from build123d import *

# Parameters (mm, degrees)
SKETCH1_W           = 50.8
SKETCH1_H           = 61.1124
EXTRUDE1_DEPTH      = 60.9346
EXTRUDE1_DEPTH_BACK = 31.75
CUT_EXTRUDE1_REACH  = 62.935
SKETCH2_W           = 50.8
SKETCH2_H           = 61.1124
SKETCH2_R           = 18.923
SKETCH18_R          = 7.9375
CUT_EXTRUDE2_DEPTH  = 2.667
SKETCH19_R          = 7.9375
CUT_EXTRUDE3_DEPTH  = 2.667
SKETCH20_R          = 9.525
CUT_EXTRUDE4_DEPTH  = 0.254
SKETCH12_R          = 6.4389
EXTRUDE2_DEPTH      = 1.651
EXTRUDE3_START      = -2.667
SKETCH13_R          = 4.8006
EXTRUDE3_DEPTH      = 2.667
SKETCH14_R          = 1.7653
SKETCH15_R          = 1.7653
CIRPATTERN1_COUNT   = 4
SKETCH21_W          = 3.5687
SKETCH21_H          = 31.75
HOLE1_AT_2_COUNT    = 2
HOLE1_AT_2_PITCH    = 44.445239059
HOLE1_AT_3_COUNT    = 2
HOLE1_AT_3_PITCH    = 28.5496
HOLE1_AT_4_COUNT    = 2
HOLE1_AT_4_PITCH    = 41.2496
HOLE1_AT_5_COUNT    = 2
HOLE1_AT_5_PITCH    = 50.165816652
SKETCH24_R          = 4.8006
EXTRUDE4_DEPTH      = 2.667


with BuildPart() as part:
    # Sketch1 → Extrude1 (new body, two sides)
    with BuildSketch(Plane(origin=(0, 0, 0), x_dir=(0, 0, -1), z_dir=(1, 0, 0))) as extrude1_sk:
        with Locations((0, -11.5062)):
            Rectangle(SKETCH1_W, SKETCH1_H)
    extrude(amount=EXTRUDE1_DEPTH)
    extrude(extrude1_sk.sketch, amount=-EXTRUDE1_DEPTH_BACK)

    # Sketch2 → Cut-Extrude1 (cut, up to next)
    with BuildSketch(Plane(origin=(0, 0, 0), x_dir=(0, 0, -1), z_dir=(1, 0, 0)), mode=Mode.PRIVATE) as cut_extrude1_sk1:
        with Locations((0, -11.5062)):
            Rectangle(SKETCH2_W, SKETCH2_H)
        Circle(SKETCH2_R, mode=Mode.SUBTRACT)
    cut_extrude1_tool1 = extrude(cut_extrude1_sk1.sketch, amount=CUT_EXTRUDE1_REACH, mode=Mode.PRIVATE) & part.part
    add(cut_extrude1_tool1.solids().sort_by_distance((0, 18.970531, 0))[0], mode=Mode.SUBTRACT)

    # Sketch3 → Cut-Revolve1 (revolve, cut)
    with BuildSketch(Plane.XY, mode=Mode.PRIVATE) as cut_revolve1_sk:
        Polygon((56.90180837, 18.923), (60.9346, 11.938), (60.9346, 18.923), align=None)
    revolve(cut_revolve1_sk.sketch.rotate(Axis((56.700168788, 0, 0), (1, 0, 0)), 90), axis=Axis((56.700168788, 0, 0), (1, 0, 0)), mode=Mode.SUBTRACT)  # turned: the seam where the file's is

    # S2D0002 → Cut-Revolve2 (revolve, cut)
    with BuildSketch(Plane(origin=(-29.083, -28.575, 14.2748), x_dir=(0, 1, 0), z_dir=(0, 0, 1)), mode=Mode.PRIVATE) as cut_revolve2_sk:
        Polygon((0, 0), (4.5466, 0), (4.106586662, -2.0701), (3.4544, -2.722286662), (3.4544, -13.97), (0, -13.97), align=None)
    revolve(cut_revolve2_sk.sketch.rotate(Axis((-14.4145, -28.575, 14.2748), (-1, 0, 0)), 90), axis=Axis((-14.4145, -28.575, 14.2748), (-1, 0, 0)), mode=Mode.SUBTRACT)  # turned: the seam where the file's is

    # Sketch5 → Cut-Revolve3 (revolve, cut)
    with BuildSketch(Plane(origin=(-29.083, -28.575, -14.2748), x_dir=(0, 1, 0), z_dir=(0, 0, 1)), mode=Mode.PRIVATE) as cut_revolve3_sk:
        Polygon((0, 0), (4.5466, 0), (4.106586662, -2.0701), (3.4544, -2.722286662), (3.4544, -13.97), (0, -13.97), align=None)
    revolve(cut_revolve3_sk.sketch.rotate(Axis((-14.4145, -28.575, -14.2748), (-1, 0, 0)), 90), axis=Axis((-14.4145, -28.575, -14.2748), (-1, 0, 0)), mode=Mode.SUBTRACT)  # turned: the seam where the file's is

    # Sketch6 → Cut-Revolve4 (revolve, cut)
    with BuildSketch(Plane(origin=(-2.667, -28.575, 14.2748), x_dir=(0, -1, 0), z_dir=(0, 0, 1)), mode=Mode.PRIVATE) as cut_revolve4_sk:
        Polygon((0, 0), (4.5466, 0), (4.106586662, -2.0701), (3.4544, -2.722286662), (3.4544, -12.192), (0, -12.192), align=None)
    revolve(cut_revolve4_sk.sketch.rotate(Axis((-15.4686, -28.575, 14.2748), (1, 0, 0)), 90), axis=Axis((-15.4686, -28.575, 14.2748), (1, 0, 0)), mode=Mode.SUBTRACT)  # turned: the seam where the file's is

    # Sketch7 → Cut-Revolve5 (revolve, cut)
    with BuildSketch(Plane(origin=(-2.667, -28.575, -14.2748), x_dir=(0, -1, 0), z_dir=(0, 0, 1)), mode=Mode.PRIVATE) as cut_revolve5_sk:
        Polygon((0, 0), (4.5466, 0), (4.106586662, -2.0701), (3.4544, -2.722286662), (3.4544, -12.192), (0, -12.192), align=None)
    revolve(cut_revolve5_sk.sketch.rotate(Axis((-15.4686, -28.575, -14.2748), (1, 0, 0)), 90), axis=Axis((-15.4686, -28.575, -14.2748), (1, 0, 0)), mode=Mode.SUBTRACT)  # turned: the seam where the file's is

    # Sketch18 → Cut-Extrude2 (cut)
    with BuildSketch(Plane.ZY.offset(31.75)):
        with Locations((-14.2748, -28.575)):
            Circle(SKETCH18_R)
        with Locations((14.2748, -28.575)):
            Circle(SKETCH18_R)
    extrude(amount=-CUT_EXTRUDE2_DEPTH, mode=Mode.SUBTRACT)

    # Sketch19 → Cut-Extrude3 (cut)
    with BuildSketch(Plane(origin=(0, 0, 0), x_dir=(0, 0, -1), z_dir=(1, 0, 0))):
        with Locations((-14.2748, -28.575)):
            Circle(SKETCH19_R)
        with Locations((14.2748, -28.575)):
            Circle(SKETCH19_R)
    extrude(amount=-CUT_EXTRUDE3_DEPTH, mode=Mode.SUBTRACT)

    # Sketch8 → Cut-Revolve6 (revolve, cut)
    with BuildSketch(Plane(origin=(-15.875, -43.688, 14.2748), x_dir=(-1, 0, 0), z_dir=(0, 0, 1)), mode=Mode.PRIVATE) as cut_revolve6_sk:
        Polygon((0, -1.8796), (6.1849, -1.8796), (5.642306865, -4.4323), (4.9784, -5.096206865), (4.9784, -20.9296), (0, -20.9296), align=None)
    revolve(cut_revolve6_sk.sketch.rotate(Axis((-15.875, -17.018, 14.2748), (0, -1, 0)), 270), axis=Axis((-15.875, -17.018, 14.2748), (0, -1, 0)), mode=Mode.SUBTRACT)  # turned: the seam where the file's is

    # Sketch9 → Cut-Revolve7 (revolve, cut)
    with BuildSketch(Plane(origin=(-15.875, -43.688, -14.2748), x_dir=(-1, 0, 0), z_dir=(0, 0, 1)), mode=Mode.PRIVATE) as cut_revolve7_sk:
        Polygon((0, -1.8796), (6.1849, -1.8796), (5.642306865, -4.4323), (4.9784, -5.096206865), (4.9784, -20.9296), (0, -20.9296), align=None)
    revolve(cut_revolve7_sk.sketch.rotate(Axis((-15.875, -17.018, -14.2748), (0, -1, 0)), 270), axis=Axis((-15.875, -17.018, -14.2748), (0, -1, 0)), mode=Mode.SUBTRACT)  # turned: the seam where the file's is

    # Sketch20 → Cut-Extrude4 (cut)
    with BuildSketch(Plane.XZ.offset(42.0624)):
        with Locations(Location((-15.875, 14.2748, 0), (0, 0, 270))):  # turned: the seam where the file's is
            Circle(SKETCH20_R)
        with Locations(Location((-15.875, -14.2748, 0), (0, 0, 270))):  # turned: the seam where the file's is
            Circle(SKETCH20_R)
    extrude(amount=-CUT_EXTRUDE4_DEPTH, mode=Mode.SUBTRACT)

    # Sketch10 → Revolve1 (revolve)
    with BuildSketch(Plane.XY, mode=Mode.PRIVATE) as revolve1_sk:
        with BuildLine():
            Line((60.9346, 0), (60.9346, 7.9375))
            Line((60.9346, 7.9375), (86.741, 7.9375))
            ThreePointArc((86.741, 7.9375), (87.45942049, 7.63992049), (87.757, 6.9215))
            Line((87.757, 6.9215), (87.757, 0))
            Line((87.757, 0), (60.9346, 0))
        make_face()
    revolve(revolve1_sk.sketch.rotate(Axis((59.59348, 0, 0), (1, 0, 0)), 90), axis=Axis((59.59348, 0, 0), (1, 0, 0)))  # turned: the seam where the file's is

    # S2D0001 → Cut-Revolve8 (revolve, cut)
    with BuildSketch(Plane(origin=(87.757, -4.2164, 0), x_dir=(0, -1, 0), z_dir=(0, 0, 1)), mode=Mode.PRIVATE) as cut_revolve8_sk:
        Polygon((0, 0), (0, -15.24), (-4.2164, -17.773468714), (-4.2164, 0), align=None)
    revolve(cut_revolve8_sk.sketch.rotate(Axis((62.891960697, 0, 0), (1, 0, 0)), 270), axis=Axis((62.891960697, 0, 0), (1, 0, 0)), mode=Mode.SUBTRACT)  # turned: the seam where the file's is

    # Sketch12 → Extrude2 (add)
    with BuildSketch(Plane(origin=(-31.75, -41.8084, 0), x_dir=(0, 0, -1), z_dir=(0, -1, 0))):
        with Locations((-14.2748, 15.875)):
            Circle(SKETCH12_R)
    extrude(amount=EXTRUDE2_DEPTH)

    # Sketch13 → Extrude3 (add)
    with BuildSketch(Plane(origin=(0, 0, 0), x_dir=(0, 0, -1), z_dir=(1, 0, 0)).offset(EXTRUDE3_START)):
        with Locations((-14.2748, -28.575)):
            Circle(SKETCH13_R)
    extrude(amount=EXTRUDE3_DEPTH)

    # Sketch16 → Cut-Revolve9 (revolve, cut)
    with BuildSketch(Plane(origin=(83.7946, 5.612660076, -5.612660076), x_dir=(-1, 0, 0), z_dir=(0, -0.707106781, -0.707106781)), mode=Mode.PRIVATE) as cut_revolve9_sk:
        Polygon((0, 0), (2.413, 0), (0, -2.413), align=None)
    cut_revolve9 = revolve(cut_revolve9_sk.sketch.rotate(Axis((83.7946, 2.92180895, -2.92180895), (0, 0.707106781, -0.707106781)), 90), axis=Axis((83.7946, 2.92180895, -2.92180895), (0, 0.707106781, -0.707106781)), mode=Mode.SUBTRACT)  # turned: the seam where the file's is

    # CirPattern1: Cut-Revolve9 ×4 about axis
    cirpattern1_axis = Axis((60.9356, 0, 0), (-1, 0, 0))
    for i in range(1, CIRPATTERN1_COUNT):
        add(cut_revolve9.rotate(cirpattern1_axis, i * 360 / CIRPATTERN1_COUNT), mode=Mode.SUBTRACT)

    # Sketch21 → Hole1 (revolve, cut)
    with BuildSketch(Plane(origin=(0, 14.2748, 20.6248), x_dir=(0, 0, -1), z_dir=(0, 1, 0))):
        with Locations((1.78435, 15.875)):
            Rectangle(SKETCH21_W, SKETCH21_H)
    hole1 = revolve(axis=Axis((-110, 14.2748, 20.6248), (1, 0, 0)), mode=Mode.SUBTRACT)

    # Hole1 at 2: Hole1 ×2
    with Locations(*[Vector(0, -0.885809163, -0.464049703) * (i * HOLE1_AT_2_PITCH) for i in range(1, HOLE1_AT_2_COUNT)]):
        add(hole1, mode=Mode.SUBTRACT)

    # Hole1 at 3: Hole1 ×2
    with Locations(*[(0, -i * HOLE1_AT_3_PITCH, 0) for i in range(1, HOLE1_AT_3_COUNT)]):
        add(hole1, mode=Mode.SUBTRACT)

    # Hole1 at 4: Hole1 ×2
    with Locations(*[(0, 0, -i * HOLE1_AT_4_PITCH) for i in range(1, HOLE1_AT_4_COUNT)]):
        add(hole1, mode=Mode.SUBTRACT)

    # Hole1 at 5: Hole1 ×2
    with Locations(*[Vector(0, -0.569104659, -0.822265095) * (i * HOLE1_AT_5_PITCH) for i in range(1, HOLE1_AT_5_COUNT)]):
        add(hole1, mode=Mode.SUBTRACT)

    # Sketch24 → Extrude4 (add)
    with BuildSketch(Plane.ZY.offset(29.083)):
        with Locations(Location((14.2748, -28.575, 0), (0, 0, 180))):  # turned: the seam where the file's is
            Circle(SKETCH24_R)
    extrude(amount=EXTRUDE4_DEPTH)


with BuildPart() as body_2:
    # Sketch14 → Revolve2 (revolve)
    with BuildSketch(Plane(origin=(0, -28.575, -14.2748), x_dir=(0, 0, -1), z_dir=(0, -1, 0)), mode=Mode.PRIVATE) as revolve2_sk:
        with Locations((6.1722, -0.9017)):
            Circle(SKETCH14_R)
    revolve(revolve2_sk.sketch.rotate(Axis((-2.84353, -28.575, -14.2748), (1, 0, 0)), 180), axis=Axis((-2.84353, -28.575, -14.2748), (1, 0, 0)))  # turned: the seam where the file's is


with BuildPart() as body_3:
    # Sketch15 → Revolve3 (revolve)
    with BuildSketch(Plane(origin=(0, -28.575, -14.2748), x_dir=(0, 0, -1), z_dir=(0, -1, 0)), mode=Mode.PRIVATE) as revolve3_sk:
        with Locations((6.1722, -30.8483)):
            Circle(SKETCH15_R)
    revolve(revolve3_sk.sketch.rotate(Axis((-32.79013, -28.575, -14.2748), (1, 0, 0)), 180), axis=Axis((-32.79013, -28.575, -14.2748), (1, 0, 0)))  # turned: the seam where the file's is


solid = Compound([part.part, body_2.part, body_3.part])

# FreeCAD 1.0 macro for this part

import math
import FreeCAD as App
import Part
import Sketcher

V = App.Vector
Q = App.Units.Quantity


def add_polygon(sketch, points):
    """Adds a closed chain of lines whose ends are joined by coincident constraints."""
    first, n = sketch.GeometryCount, len(points)
    for a, b in zip(points, points[1:] + points[:1]):
        sketch.addGeometry(Part.LineSegment(App.Vector(*a, 0), App.Vector(*b, 0)), False)
    for i in range(n):
        sketch.addConstraint(Sketcher.Constraint("Coincident", first + i, 2, first + (i + 1) % n, 1))

doc = App.newDocument("Part")
body = doc.addObject("PartDesign::Body", "Body")

sketch1 = body.newObject("Sketcher::SketchObject", "Sketch")
sketch1.AttachmentSupport = (doc.getObject("YZ_Plane"), [""])
sketch1.MapMode = "FlatFace"
add_polygon(sketch1, [(19, 25), (-42, 25), (-42, -25), (19, -25)])
sketch1.addConstraint([
    Sketcher.Constraint("Horizontal", 0),
    Sketcher.Constraint("Vertical", 1),
    Sketcher.Constraint("Horizontal", 2),
    Sketcher.Constraint("Vertical", 3),
    Sketcher.Constraint("DistanceY", 1, 2, 1, 1, Q("2 in")),
    Sketcher.Constraint("DistanceY", -1, 1, 0, 2, Q("1 in")),
    Sketcher.Constraint("DistanceX", 0, 2, 0, 1, Q("2.406 in")),
    Sketcher.Constraint("DistanceX", -1, 1, 2, 2, Q("0.75 in")),
])
pad1 = body.newObject("PartDesign::Pad", "Pad")
pad1.Profile = sketch1
pad1.Type = "TwoLengths"
pad1.Length = Q("2.399 in")
pad1.Length2 = Q("1.25 in")

sketch2 = body.newObject("Sketcher::SketchObject", "Sketch001")
sketch2.AttachmentSupport = (doc.getObject("YZ_Plane"), [""])
sketch2.MapMode = "FlatFace"
add_polygon(sketch2, [(19, 25), (-42, 25), (-42, -25), (19, -25)])
sketch2.addGeometry(Part.Circle(V(0, 0, 0), V(0, 0, 1), 19), False)
sketch2.addConstraint([
    Sketcher.Constraint("Horizontal", 0),
    Sketcher.Constraint("Vertical", 1),
    Sketcher.Constraint("Horizontal", 2),
    Sketcher.Constraint("Vertical", 3),
    Sketcher.Constraint("Coincident", 4, 3, -1, 1),
    Sketcher.Constraint("Diameter", 4, Q("1.49 in")),
    Sketcher.Constraint("DistanceY", 1, 2, 1, 1, Q("2 in")),
    Sketcher.Constraint("DistanceY", -1, 1, 0, 2, Q("1 in")),
    Sketcher.Constraint("DistanceX", 0, 2, 0, 1, Q("2.406 in")),
    Sketcher.Constraint("DistanceX", -1, 1, 2, 2, Q("0.75 in")),
])
pocket1 = body.newObject("PartDesign::Pocket", "Pocket")
pocket1.Profile = sketch2
pocket1.Type = "UpToFirst"
pocket1.Reversed = True

sketch3 = body.newObject("Sketcher::SketchObject", "Sketch002")
sketch3.AttachmentSupport = (doc.getObject("XY_Plane"), [""])
sketch3.MapMode = "FlatFace"
add_polygon(sketch3, [(56.9, 18.9), (60.9, 11.9), (60.9, 18.9)])
sketch3.addConstraint([
    Sketcher.Constraint("Vertical", 1),
    Sketcher.Constraint("Horizontal", 2),
    Sketcher.Constraint("Angle", 0, Q("-60 deg")),
    Sketcher.Constraint("DistanceY", 1, 1, 1, 2, Q("0.275 in")),
    Sketcher.Constraint("DistanceY", -1, 1, 0, 2, Q("0.47 in")),
    Sketcher.Constraint("DistanceX", -1, 1, 0, 2, Q("2.399 in")),
])
groove = body.newObject("PartDesign::Groove", "Groove")
groove.Profile = sketch3
groove.ReferenceAxis = (sketch3, ["H_Axis"])
groove.Angle = 360

sketch4 = body.newObject("Sketcher::SketchObject", "Sketch003")
sketch4.AttachmentSupport = (doc.getObject("XY_Plane"), [""])
sketch4.MapMode = "FlatFace"
sketch4.AttachmentOffset = App.Placement(V(0, 0, 0.562 * 25.4), App.Rotation())
add_polygon(sketch4, [(-29.1, -24), (-29.1, -28.6), (-15.1, -28.6), (-15.1, -25.1), (-26.4, -25.1), (-27, -24.5)])
sketch4.addGeometry(Part.LineSegment(V(-15.1, -28.6, 0), V(-29.1, -28.6, 0)), True)
sketch4.addConstraint([
    Sketcher.Constraint("Vertical", 0),
    Sketcher.Constraint("Horizontal", 1),
    Sketcher.Constraint("Vertical", 2),
    Sketcher.Constraint("Horizontal", 3),
    Sketcher.Constraint("Horizontal", 6),
    Sketcher.Constraint("Coincident", 6, 1, 1, 2),
    Sketcher.Constraint("Vertical", 5, 2, 6, 2),
    Sketcher.Constraint("Angle", 4, Q("135 deg")),
    Sketcher.Constraint("Angle", 5, Q("168 deg")),
    Sketcher.Constraint("DistanceX", 1, 1, 1, 2, Q("0.55 in")),
    Sketcher.Constraint("DistanceY", 0, 2, 0, 1, Q("0.179 in")),
    Sketcher.Constraint("DistanceY", 2, 1, 2, 2, Q("0.136 in")),
    Sketcher.Constraint("DistanceX", 0, 2, -1, 1, Q("1.145 in")),
    Sketcher.Constraint("DistanceY", 0, 2, -1, 1, Q("1.125 in")),
    Sketcher.Constraint("DistanceX", 4, 2, -1, 1, Q("1.0635 in")),
])
groove2 = body.newObject("PartDesign::Groove", "Groove001")
groove2.Profile = sketch4
groove2.ReferenceAxis = (sketch4, ["Axis0"])
groove2.Angle = 360

sketch5 = body.newObject("Sketcher::SketchObject", "Sketch004")
sketch5.AttachmentSupport = (doc.getObject("XY_Plane"), [""])
sketch5.MapMode = "FlatFace"
sketch5.AttachmentOffset = App.Placement(V(0, 0, -0.562 * 25.4), App.Rotation())
add_polygon(sketch5, [(-29.1, -24), (-29.1, -28.6), (-15.1, -28.6), (-15.1, -25.1), (-26.4, -25.1), (-27, -24.5)])
sketch5.addGeometry(Part.LineSegment(V(-15.1, -28.6, 0), V(-29.1, -28.6, 0)), True)
sketch5.addConstraint([
    Sketcher.Constraint("Vertical", 0),
    Sketcher.Constraint("Horizontal", 1),
    Sketcher.Constraint("Vertical", 2),
    Sketcher.Constraint("Horizontal", 3),
    Sketcher.Constraint("Horizontal", 6),
    Sketcher.Constraint("Coincident", 6, 1, 1, 2),
    Sketcher.Constraint("Vertical", 5, 2, 6, 2),
    Sketcher.Constraint("Angle", 4, Q("135 deg")),
    Sketcher.Constraint("Angle", 5, Q("168 deg")),
    Sketcher.Constraint("DistanceX", 1, 1, 1, 2, Q("0.55 in")),
    Sketcher.Constraint("DistanceY", 0, 2, 0, 1, Q("0.179 in")),
    Sketcher.Constraint("DistanceY", 2, 1, 2, 2, Q("0.136 in")),
    Sketcher.Constraint("DistanceX", 0, 2, -1, 1, Q("1.145 in")),
    Sketcher.Constraint("DistanceY", 0, 2, -1, 1, Q("1.125 in")),
    Sketcher.Constraint("DistanceX", 4, 2, -1, 1, Q("1.0635 in")),
])
groove3 = body.newObject("PartDesign::Groove", "Groove002")
groove3.Profile = sketch5
groove3.ReferenceAxis = (sketch5, ["Axis0"])
groove3.Angle = 360

sketch6 = body.newObject("Sketcher::SketchObject", "Sketch005")
sketch6.AttachmentSupport = (doc.getObject("XY_Plane"), [""])
sketch6.MapMode = "FlatFace"
sketch6.AttachmentOffset = App.Placement(V(0, 0, 0.562 * 25.4), App.Rotation())
add_polygon(sketch6, [(-2.7, -33.1), (-2.7, -28.6), (-14.9, -28.6), (-14.9, -32), (-5.4, -32), (-4.7, -32.7)])
sketch6.addGeometry(Part.LineSegment(V(-14.9, -28.6, 0), V(-2.7, -28.6, 0)), True)
sketch6.addConstraint([
    Sketcher.Constraint("Vertical", 0),
    Sketcher.Constraint("Horizontal", 1),
    Sketcher.Constraint("Vertical", 2),
    Sketcher.Constraint("Horizontal", 3),
    Sketcher.Constraint("Horizontal", 6),
    Sketcher.Constraint("Coincident", 6, 1, 1, 2),
    Sketcher.Constraint("Vertical", 5, 2, 6, 2),
    Sketcher.Constraint("Angle", 4, Q("-45 deg")),
    Sketcher.Constraint("Angle", 5, Q("-12 deg")),
    Sketcher.Constraint("DistanceX", 1, 2, 1, 1, Q("0.48 in")),
    Sketcher.Constraint("DistanceY", 0, 1, 0, 2, Q("0.179 in")),
    Sketcher.Constraint("DistanceY", 2, 2, 2, 1, Q("0.136 in")),
    Sketcher.Constraint("DistanceX", 0, 2, -1, 1, Q("0.105 in")),
    Sketcher.Constraint("DistanceY", 0, 2, -1, 1, Q("1.125 in")),
    Sketcher.Constraint("DistanceX", 4, 2, -1, 1, Q("0.1865 in")),
])
groove4 = body.newObject("PartDesign::Groove", "Groove003")
groove4.Profile = sketch6
groove4.ReferenceAxis = (sketch6, ["Axis0"])
groove4.Angle = 360

sketch7 = body.newObject("Sketcher::SketchObject", "Sketch006")
sketch7.AttachmentSupport = (doc.getObject("XY_Plane"), [""])
sketch7.MapMode = "FlatFace"
sketch7.AttachmentOffset = App.Placement(V(0, 0, -0.562 * 25.4), App.Rotation())
add_polygon(sketch7, [(-2.7, -33.1), (-2.7, -28.6), (-14.9, -28.6), (-14.9, -32), (-5.4, -32), (-4.7, -32.7)])
sketch7.addGeometry(Part.LineSegment(V(-14.9, -28.6, 0), V(-2.7, -28.6, 0)), True)
sketch7.addConstraint([
    Sketcher.Constraint("Vertical", 0),
    Sketcher.Constraint("Horizontal", 1),
    Sketcher.Constraint("Vertical", 2),
    Sketcher.Constraint("Horizontal", 3),
    Sketcher.Constraint("Horizontal", 6),
    Sketcher.Constraint("Coincident", 6, 1, 1, 2),
    Sketcher.Constraint("Vertical", 5, 2, 6, 2),
    Sketcher.Constraint("Angle", 4, Q("-45 deg")),
    Sketcher.Constraint("Angle", 5, Q("-12 deg")),
    Sketcher.Constraint("DistanceX", 1, 2, 1, 1, Q("0.48 in")),
    Sketcher.Constraint("DistanceY", 0, 1, 0, 2, Q("0.179 in")),
    Sketcher.Constraint("DistanceY", 2, 2, 2, 1, Q("0.136 in")),
    Sketcher.Constraint("DistanceX", 0, 2, -1, 1, Q("0.105 in")),
    Sketcher.Constraint("DistanceY", 0, 2, -1, 1, Q("1.125 in")),
    Sketcher.Constraint("DistanceX", 4, 2, -1, 1, Q("0.1865 in")),
])
groove5 = body.newObject("PartDesign::Groove", "Groove004")
groove5.Profile = sketch7
groove5.ReferenceAxis = (sketch7, ["Axis0"])
groove5.Angle = 360

sketch8 = body.newObject("Sketcher::SketchObject", "Sketch007")
sketch8.AttachmentSupport = (doc.getObject("YZ_Plane"), [""])
sketch8.MapMode = "FlatFace"
sketch8.AttachmentOffset = App.Placement(V(0, 0, -1.25 * 25.4), App.Rotation())
sketch8.addGeometry([
    Part.Circle(V(-29, -14, 0), V(0, 0, 1), 8),
    Part.Circle(V(-29, 14, 0), V(0, 0, 1), 8),
], False)
sketch8.addConstraint([
    Sketcher.Constraint("Equal", 0, 1),
    Sketcher.Constraint("Symmetric", 0, 3, 1, 3, -1),
    Sketcher.Constraint("Diameter", 0, Q("0.625 in")),
    Sketcher.Constraint("DistanceX", 0, 3, -1, 1, Q("1.125 in")),
    Sketcher.Constraint("DistanceY", 0, 3, -1, 1, Q("0.562 in")),
])
pocket2 = body.newObject("PartDesign::Pocket", "Pocket001")
pocket2.Profile = sketch8
pocket2.Length = Q("0.105 in")
pocket2.Reversed = True

sketch9 = body.newObject("Sketcher::SketchObject", "Sketch008")
sketch9.AttachmentSupport = (doc.getObject("YZ_Plane"), [""])
sketch9.MapMode = "FlatFace"
sketch9.addGeometry([
    Part.Circle(V(-29, 14, 0), V(0, 0, 1), 8),
    Part.Circle(V(-29, -14, 0), V(0, 0, 1), 8),
], False)
sketch9.addConstraint([
    Sketcher.Constraint("Equal", 0, 1),
    Sketcher.Constraint("Symmetric", 0, 3, 1, 3, -1),
    Sketcher.Constraint("Diameter", 0, Q("0.625 in")),
    Sketcher.Constraint("DistanceX", 0, 3, -1, 1, Q("1.125 in")),
    Sketcher.Constraint("DistanceY", -1, 1, 0, 3, Q("0.562 in")),
])
pocket3 = body.newObject("PartDesign::Pocket", "Pocket002")
pocket3.Profile = sketch9
pocket3.Length = Q("0.105 in")

sketch10 = body.newObject("Sketcher::SketchObject", "Sketch009")
sketch10.AttachmentSupport = (doc.getObject("XY_Plane"), [""])
sketch10.MapMode = "FlatFace"
sketch10.AttachmentOffset = App.Placement(V(0, 0, 0.562 * 25.4), App.Rotation())
add_polygon(sketch10, [(-22.1, -41.8), (-15.9, -41.8), (-15.9, -22.8), (-20.9, -22.8), (-20.9, -38.6), (-21.5, -39.3)])
sketch10.addGeometry(Part.LineSegment(V(-15.9, -22.8, 0), V(-15.9, -41.8, 0)), True)
sketch10.addConstraint([
    Sketcher.Constraint("Horizontal", 0),
    Sketcher.Constraint("Vertical", 1),
    Sketcher.Constraint("Horizontal", 2),
    Sketcher.Constraint("Vertical", 3),
    Sketcher.Constraint("Vertical", 6),
    Sketcher.Constraint("Coincident", 6, 1, 1, 2),
    Sketcher.Constraint("Horizontal", 5, 2, 6, 2),
    Sketcher.Constraint("Angle", 4, Q("-135 deg")),
    Sketcher.Constraint("Angle", 5, Q("-102 deg")),
    Sketcher.Constraint("DistanceY", 1, 1, 1, 2, Q("0.75 in")),
    Sketcher.Constraint("DistanceX", 2, 2, 2, 1, Q("0.196 in")),
    Sketcher.Constraint("DistanceX", 0, 1, 0, 2, Q("0.2435 in")),
    Sketcher.Constraint("DistanceX", 0, 2, -1, 1, Q("0.625 in")),
    Sketcher.Constraint("DistanceY", 0, 2, -1, 1, Q("1.646 in")),
    Sketcher.Constraint("DistanceY", 4, 2, -1, 1, Q("1.5455 in")),
])
groove6 = body.newObject("PartDesign::Groove", "Groove005")
groove6.Profile = sketch10
groove6.ReferenceAxis = (sketch10, ["Axis0"])
groove6.Angle = 360

sketch11 = body.newObject("Sketcher::SketchObject", "Sketch010")
sketch11.AttachmentSupport = (doc.getObject("XY_Plane"), [""])
sketch11.MapMode = "FlatFace"
sketch11.AttachmentOffset = App.Placement(V(0, 0, -0.562 * 25.4), App.Rotation())
add_polygon(sketch11, [(-22.1, -41.8), (-15.9, -41.8), (-15.9, -22.8), (-20.9, -22.8), (-20.9, -38.6), (-21.5, -39.3)])
sketch11.addGeometry(Part.LineSegment(V(-15.9, -22.8, 0), V(-15.9, -41.8, 0)), True)
sketch11.addConstraint([
    Sketcher.Constraint("Horizontal", 0),
    Sketcher.Constraint("Vertical", 1),
    Sketcher.Constraint("Horizontal", 2),
    Sketcher.Constraint("Vertical", 3),
    Sketcher.Constraint("Vertical", 6),
    Sketcher.Constraint("Coincident", 6, 1, 1, 2),
    Sketcher.Constraint("Horizontal", 5, 2, 6, 2),
    Sketcher.Constraint("Angle", 4, Q("-135 deg")),
    Sketcher.Constraint("Angle", 5, Q("-102 deg")),
    Sketcher.Constraint("DistanceY", 1, 1, 1, 2, Q("0.75 in")),
    Sketcher.Constraint("DistanceX", 2, 2, 2, 1, Q("0.196 in")),
    Sketcher.Constraint("DistanceX", 0, 1, 0, 2, Q("0.2435 in")),
    Sketcher.Constraint("DistanceX", 0, 2, -1, 1, Q("0.625 in")),
    Sketcher.Constraint("DistanceY", 0, 2, -1, 1, Q("1.646 in")),
    Sketcher.Constraint("DistanceY", 4, 2, -1, 1, Q("1.5455 in")),
])
groove7 = body.newObject("PartDesign::Groove", "Groove006")
groove7.Profile = sketch11
groove7.ReferenceAxis = (sketch11, ["Axis0"])
groove7.Angle = 360

sketch12 = body.newObject("Sketcher::SketchObject", "Sketch011")
sketch12.AttachmentSupport = (doc.getObject("XZ_Plane"), [""])
sketch12.MapMode = "FlatFace"
sketch12.AttachmentOffset = App.Placement(V(0, 0, 1.656 * 25.4), App.Rotation())
sketch12.addGeometry([
    Part.Circle(V(-16, 14, 0), V(0, 0, 1), 10),
    Part.Circle(V(-16, -14, 0), V(0, 0, 1), 10),
], False)
sketch12.addConstraint([
    Sketcher.Constraint("Equal", 0, 1),
    Sketcher.Constraint("Symmetric", 0, 3, 1, 3, -1),
    Sketcher.Constraint("Diameter", 0, Q("0.75 in")),
    Sketcher.Constraint("DistanceX", 0, 3, -1, 1, Q("0.625 in")),
    Sketcher.Constraint("DistanceY", -1, 1, 0, 3, Q("0.562 in")),
])
pocket4 = body.newObject("PartDesign::Pocket", "Pocket003")
pocket4.Profile = sketch12
pocket4.Length = Q("0.01 in")

sketch13 = body.newObject("Sketcher::SketchObject", "Sketch012")
sketch13.AttachmentSupport = (doc.getObject("XY_Plane"), [""])
sketch13.MapMode = "FlatFace"
sketch13.addGeometry([
    Part.LineSegment(V(60.9, 7.9, 0), V(60.9, 0, 0)),
    Part.LineSegment(V(60.9, 0, 0), V(87.8, 0, 0)),
    Part.LineSegment(V(87.8, 0, 0), V(87.8, 6.9, 0)),
    Part.ArcOfCircle(Part.Circle(V(86.7, 6.9, 0), V(0, 0, 1), 1), math.radians(0), math.radians(90)),
    Part.LineSegment(V(86.7, 7.9, 0), V(60.9, 7.9, 0)),
], False)
sketch13.addConstraint([
    Sketcher.Constraint("Coincident", 0, 2, 1, 1),
    Sketcher.Constraint("Coincident", 1, 2, 2, 1),
    Sketcher.Constraint("Tangent", 2, 2, 3, 1),
    Sketcher.Constraint("Tangent", 3, 2, 4, 1),
    Sketcher.Constraint("Coincident", 4, 2, 0, 1),
    Sketcher.Constraint("Vertical", 0),
    Sketcher.Constraint("Horizontal", 1),
    Sketcher.Constraint("Vertical", 2),
    Sketcher.Constraint("Horizontal", 4),
    Sketcher.Constraint("PointOnObject", 0, 2, -1),
    Sketcher.Constraint("Radius", 3, Q("0.04 in")),
    Sketcher.Constraint("DistanceX", 1, 1, 1, 2, Q("1.056 in")),
    Sketcher.Constraint("DistanceY", 0, 2, 0, 1, Q("0.3125 in")),
    Sketcher.Constraint("DistanceX", -1, 1, 3, 3, Q("3.415 in")),
])
revolution = body.newObject("PartDesign::Revolution", "Revolution")
revolution.Profile = sketch13
revolution.ReferenceAxis = (sketch13, ["H_Axis"])
revolution.Angle = 360

sketch14 = body.newObject("Sketcher::SketchObject", "Sketch013")
sketch14.AttachmentSupport = (doc.getObject("XY_Plane"), [""])
sketch14.MapMode = "FlatFace"
add_polygon(sketch14, [(72.5, -4.2), (87.8, -4.2), (87.8, 0), (70, 0)])
sketch14.addConstraint([
    Sketcher.Constraint("Horizontal", 0),
    Sketcher.Constraint("Vertical", 1),
    Sketcher.Constraint("Horizontal", 2),
    Sketcher.Constraint("PointOnObject", 1, 2, -1),
    Sketcher.Constraint("DistanceX", 0, 1, 0, 2, Q("0.6 in")),
    Sketcher.Constraint("Angle", 3, Q("-59 deg")),
    Sketcher.Constraint("DistanceY", 1, 1, 1, 2, Q("0.166 in")),
    Sketcher.Constraint("DistanceX", -1, 1, 0, 2, Q("3.455 in")),
])
groove8 = body.newObject("PartDesign::Groove", "Groove007")
groove8.Profile = sketch14
groove8.ReferenceAxis = (sketch14, ["H_Axis"])
groove8.Angle = 360

sketch15 = body.newObject("Sketcher::SketchObject", "Sketch014")
sketch15.AttachmentSupport = (doc.getObject("XZ_Plane"), [""])
sketch15.MapMode = "FlatFace"
sketch15.AttachmentOffset = App.Placement(V(0, 0, 1.646 * 25.4), App.Rotation())
sketch15.addGeometry(Part.Circle(V(-16, 14, 0), V(0, 0, 1), 6), False)
sketch15.addConstraint([
    Sketcher.Constraint("Diameter", 0, Q("0.507 in")),
    Sketcher.Constraint("DistanceX", 0, 3, -1, 1, Q("0.625 in")),
    Sketcher.Constraint("DistanceY", -1, 1, 0, 3, Q("0.562 in")),
])
pad2 = body.newObject("PartDesign::Pad", "Pad001")
pad2.Profile = sketch15
pad2.Length = Q("0.065 in")

sketch16 = body.newObject("Sketcher::SketchObject", "Sketch015")
sketch16.AttachmentSupport = (doc.getObject("YZ_Plane"), [""])
sketch16.MapMode = "FlatFace"
sketch16.AttachmentOffset = App.Placement(V(0, 0, -0.105 * 25.4), App.Rotation())
sketch16.addGeometry(Part.Circle(V(-28.6, 14.3, 0), V(0, 0, 1), 4.8), False)
sketch16.addConstraint([
    Sketcher.Constraint("Diameter", 0, Q("0.378 in")),
    Sketcher.Constraint("DistanceX", 0, 3, -1, 1, Q("1.125 in")),
    Sketcher.Constraint("DistanceY", -1, 1, 0, 3, Q("0.562 in")),
])
pad3 = body.newObject("PartDesign::Pad", "Pad002")
pad3.Profile = sketch16
pad3.Length = Q("0.105 in")

sketch17 = body.newObject("Sketcher::SketchObject", "Sketch016")
sketch17.Placement = App.Placement(V(83.7946, 5.61266, -5.61266), App.Rotation(V(-1, 0, 0), V(0, 0.707106781, -0.707106781), V(0, -0.707106781, -0.707106781), "ZXY"))
add_polygon(sketch17, [(2.4, 0), (0, 0), (0, -2.4)])
sketch17.addConstraint([
    Sketcher.Constraint("Horizontal", 0),
    Sketcher.Constraint("Vertical", 1),
    Sketcher.Constraint("Coincident", 0, 2, -1, 1),
    Sketcher.Constraint("Equal", 0, 1),
    Sketcher.Constraint("DistanceX", 0, 2, 0, 1, Q("0.095 in")),
])
groove9 = body.newObject("PartDesign::Groove", "Groove008")
groove9.Profile = sketch17
groove9.ReferenceAxis = (sketch17, ["V_Axis"])
groove9.Angle = 360
doc.recompute()

polarpattern = body.newObject("PartDesign::PolarPattern", "PolarPattern")
polarpattern.Originals = [groove9]
polarpattern.Axis = (doc.getObject("X_Axis"), [""])
polarpattern.Angle = 360
polarpattern.Occurrences = 4
body.Tip = polarpattern

sketch18 = body.newObject("Sketcher::SketchObject", "Sketch017")
sketch18.AttachmentSupport = (doc.getObject("XZ_Plane"), [""])
sketch18.MapMode = "FlatFace"
sketch18.AttachmentOffset = App.Placement(V(0, 0, -0.562 * 25.4), App.Rotation())
add_polygon(sketch18, [(-31.8, 20.6), (0, 20.6), (0, 17.1), (-31.8, 17.1)])
sketch18.addGeometry(Part.LineSegment(V(-31.8, 20.6, 0), V(0, 20.6, 0)), True)
sketch18.addConstraint([
    Sketcher.Constraint("Horizontal", 0),
    Sketcher.Constraint("Vertical", 1),
    Sketcher.Constraint("Horizontal", 2),
    Sketcher.Constraint("Vertical", 3),
    Sketcher.Constraint("Horizontal", 4),
    Sketcher.Constraint("Coincident", 4, 1, 3, 2),
    Sketcher.Constraint("PointOnObject", 0, 2, -2),
    Sketcher.Constraint("PointOnObject", 4, 2, -2),
    Sketcher.Constraint("DistanceX", 0, 1, 0, 2, Q("1.25 in")),
    Sketcher.Constraint("DistanceY", 1, 2, 1, 1, Q("0.1405 in")),
    Sketcher.Constraint("DistanceY", -1, 1, 0, 2, Q("0.812 in")),
])
groove10 = body.newObject("PartDesign::Groove", "Groove009")
groove10.Profile = sketch18
groove10.ReferenceAxis = (sketch18, ["Axis0"])
groove10.Angle = 360
doc.recompute()

datumline = body.newObject("PartDesign::Line", "DatumLine")
datumline.Placement = App.Placement(V(0, 0, 0), App.Rotation(V(0, 0, 1), V(0, -0.885809163, -0.464049703)))
linearpattern = body.newObject("PartDesign::LinearPattern", "LinearPattern")
linearpattern.Originals = [groove10]
linearpattern.Direction = (datumline, [""])
linearpattern.Mode = "offset"
linearpattern.Offset = 44.445239
linearpattern.Occurrences = 2
body.Tip = linearpattern
doc.recompute()

linearpattern2 = body.newObject("PartDesign::LinearPattern", "LinearPattern001")
linearpattern2.Originals = [groove10]
linearpattern2.Direction = (doc.getObject("Y_Axis"), [""])
linearpattern2.Mode = "offset"
linearpattern2.Offset = Q("1.124 in")
linearpattern2.Occurrences = 2
linearpattern2.Reversed = True
body.Tip = linearpattern2
doc.recompute()

linearpattern3 = body.newObject("PartDesign::LinearPattern", "LinearPattern002")
linearpattern3.Originals = [groove10]
linearpattern3.Direction = (doc.getObject("Z_Axis"), [""])
linearpattern3.Mode = "offset"
linearpattern3.Offset = Q("1.624 in")
linearpattern3.Occurrences = 2
linearpattern3.Reversed = True
body.Tip = linearpattern3
doc.recompute()

datumline2 = body.newObject("PartDesign::Line", "DatumLine001")
datumline2.Placement = App.Placement(V(0, 0, 0), App.Rotation(V(0, 0, 1), V(0, -0.569104659, -0.822265095)))
linearpattern4 = body.newObject("PartDesign::LinearPattern", "LinearPattern003")
linearpattern4.Originals = [groove10]
linearpattern4.Direction = (datumline2, [""])
linearpattern4.Mode = "offset"
linearpattern4.Offset = 50.165817
linearpattern4.Occurrences = 2
body.Tip = linearpattern4

sketch19 = body.newObject("Sketcher::SketchObject", "Sketch018")
sketch19.AttachmentSupport = (doc.getObject("YZ_Plane"), [""])
sketch19.MapMode = "FlatFace"
sketch19.AttachmentOffset = App.Placement(V(0, 0, -1.145 * 25.4), App.Rotation())
sketch19.addGeometry(Part.Circle(V(-28.6, 14.3, 0), V(0, 0, 1), 4.8), False)
sketch19.addConstraint([
    Sketcher.Constraint("Diameter", 0, Q("0.378 in")),
    Sketcher.Constraint("DistanceX", 0, 3, -1, 1, Q("1.125 in")),
    Sketcher.Constraint("DistanceY", -1, 1, 0, 3, Q("0.562 in")),
])
pad4 = body.newObject("PartDesign::Pad", "Pad003")
pad4.Profile = sketch19
pad4.Length = Q("0.105 in")
pad4.Reversed = True
body2 = doc.addObject("PartDesign::Body", "Body001")

sketch20 = body2.newObject("Sketcher::SketchObject", "Sketch019")
sketch20.AttachmentSupport = (doc.getObject("XZ_Plane001"), [""])
sketch20.MapMode = "FlatFace"
sketch20.AttachmentOffset = App.Placement(V(0, 0, 1.125 * 25.4), App.Rotation())
sketch20.addGeometry(Part.Circle(V(-0.9, -20.4, 0), V(0, 0, 1), 1.8), False)
sketch20.addGeometry(Part.LineSegment(V(-0.9, -14.3, 0), V(9.1, -14.3, 0)), True)
sketch20.addConstraint([
    Sketcher.Constraint("Horizontal", 1),
    Sketcher.Constraint("Vertical", 0, 3, 1, 1),
    Sketcher.Constraint("Diameter", 0, Q("0.139 in")),
    Sketcher.Constraint("DistanceY", 0, 3, -1, 1, Q("0.805 in")),
    Sketcher.Constraint("DistanceY", 1, 1, -1, 1, Q("0.562 in")),
    Sketcher.Constraint("DistanceX", 1, 1, 1, 2, Q("10 mm")),
    Sketcher.Constraint("DistanceX", 0, 3, -1, 1, Q("0.0355 in")),
])
revolution2 = body2.newObject("PartDesign::Revolution", "Revolution001")
revolution2.Profile = sketch20
revolution2.ReferenceAxis = (sketch20, ["Axis0"])
revolution2.Angle = 360
body3 = doc.addObject("PartDesign::Body", "Body002")

sketch21 = body3.newObject("Sketcher::SketchObject", "Sketch020")
sketch21.AttachmentSupport = (doc.getObject("XZ_Plane002"), [""])
sketch21.MapMode = "FlatFace"
sketch21.AttachmentOffset = App.Placement(V(0, 0, 1.125 * 25.4), App.Rotation())
sketch21.addGeometry(Part.Circle(V(-30.8, -20.4, 0), V(0, 0, 1), 1.8), False)
sketch21.addGeometry(Part.LineSegment(V(-30.8, -14.3, 0), V(-20.8, -14.3, 0)), True)
sketch21.addConstraint([
    Sketcher.Constraint("Horizontal", 1),
    Sketcher.Constraint("Vertical", 0, 3, 1, 1),
    Sketcher.Constraint("Diameter", 0, Q("0.139 in")),
    Sketcher.Constraint("DistanceY", 0, 3, -1, 1, Q("0.805 in")),
    Sketcher.Constraint("DistanceY", 1, 1, -1, 1, Q("0.562 in")),
    Sketcher.Constraint("DistanceX", 1, 1, 1, 2, Q("10 mm")),
    Sketcher.Constraint("DistanceX", 0, 3, -1, 1, Q("1.2145 in")),
])
revolution3 = body3.newObject("PartDesign::Revolution", "Revolution002")
revolution3.Profile = sketch21
revolution3.ReferenceAxis = (sketch21, ["Axis0"])
revolution3.Angle = 360

doc.recompute()
